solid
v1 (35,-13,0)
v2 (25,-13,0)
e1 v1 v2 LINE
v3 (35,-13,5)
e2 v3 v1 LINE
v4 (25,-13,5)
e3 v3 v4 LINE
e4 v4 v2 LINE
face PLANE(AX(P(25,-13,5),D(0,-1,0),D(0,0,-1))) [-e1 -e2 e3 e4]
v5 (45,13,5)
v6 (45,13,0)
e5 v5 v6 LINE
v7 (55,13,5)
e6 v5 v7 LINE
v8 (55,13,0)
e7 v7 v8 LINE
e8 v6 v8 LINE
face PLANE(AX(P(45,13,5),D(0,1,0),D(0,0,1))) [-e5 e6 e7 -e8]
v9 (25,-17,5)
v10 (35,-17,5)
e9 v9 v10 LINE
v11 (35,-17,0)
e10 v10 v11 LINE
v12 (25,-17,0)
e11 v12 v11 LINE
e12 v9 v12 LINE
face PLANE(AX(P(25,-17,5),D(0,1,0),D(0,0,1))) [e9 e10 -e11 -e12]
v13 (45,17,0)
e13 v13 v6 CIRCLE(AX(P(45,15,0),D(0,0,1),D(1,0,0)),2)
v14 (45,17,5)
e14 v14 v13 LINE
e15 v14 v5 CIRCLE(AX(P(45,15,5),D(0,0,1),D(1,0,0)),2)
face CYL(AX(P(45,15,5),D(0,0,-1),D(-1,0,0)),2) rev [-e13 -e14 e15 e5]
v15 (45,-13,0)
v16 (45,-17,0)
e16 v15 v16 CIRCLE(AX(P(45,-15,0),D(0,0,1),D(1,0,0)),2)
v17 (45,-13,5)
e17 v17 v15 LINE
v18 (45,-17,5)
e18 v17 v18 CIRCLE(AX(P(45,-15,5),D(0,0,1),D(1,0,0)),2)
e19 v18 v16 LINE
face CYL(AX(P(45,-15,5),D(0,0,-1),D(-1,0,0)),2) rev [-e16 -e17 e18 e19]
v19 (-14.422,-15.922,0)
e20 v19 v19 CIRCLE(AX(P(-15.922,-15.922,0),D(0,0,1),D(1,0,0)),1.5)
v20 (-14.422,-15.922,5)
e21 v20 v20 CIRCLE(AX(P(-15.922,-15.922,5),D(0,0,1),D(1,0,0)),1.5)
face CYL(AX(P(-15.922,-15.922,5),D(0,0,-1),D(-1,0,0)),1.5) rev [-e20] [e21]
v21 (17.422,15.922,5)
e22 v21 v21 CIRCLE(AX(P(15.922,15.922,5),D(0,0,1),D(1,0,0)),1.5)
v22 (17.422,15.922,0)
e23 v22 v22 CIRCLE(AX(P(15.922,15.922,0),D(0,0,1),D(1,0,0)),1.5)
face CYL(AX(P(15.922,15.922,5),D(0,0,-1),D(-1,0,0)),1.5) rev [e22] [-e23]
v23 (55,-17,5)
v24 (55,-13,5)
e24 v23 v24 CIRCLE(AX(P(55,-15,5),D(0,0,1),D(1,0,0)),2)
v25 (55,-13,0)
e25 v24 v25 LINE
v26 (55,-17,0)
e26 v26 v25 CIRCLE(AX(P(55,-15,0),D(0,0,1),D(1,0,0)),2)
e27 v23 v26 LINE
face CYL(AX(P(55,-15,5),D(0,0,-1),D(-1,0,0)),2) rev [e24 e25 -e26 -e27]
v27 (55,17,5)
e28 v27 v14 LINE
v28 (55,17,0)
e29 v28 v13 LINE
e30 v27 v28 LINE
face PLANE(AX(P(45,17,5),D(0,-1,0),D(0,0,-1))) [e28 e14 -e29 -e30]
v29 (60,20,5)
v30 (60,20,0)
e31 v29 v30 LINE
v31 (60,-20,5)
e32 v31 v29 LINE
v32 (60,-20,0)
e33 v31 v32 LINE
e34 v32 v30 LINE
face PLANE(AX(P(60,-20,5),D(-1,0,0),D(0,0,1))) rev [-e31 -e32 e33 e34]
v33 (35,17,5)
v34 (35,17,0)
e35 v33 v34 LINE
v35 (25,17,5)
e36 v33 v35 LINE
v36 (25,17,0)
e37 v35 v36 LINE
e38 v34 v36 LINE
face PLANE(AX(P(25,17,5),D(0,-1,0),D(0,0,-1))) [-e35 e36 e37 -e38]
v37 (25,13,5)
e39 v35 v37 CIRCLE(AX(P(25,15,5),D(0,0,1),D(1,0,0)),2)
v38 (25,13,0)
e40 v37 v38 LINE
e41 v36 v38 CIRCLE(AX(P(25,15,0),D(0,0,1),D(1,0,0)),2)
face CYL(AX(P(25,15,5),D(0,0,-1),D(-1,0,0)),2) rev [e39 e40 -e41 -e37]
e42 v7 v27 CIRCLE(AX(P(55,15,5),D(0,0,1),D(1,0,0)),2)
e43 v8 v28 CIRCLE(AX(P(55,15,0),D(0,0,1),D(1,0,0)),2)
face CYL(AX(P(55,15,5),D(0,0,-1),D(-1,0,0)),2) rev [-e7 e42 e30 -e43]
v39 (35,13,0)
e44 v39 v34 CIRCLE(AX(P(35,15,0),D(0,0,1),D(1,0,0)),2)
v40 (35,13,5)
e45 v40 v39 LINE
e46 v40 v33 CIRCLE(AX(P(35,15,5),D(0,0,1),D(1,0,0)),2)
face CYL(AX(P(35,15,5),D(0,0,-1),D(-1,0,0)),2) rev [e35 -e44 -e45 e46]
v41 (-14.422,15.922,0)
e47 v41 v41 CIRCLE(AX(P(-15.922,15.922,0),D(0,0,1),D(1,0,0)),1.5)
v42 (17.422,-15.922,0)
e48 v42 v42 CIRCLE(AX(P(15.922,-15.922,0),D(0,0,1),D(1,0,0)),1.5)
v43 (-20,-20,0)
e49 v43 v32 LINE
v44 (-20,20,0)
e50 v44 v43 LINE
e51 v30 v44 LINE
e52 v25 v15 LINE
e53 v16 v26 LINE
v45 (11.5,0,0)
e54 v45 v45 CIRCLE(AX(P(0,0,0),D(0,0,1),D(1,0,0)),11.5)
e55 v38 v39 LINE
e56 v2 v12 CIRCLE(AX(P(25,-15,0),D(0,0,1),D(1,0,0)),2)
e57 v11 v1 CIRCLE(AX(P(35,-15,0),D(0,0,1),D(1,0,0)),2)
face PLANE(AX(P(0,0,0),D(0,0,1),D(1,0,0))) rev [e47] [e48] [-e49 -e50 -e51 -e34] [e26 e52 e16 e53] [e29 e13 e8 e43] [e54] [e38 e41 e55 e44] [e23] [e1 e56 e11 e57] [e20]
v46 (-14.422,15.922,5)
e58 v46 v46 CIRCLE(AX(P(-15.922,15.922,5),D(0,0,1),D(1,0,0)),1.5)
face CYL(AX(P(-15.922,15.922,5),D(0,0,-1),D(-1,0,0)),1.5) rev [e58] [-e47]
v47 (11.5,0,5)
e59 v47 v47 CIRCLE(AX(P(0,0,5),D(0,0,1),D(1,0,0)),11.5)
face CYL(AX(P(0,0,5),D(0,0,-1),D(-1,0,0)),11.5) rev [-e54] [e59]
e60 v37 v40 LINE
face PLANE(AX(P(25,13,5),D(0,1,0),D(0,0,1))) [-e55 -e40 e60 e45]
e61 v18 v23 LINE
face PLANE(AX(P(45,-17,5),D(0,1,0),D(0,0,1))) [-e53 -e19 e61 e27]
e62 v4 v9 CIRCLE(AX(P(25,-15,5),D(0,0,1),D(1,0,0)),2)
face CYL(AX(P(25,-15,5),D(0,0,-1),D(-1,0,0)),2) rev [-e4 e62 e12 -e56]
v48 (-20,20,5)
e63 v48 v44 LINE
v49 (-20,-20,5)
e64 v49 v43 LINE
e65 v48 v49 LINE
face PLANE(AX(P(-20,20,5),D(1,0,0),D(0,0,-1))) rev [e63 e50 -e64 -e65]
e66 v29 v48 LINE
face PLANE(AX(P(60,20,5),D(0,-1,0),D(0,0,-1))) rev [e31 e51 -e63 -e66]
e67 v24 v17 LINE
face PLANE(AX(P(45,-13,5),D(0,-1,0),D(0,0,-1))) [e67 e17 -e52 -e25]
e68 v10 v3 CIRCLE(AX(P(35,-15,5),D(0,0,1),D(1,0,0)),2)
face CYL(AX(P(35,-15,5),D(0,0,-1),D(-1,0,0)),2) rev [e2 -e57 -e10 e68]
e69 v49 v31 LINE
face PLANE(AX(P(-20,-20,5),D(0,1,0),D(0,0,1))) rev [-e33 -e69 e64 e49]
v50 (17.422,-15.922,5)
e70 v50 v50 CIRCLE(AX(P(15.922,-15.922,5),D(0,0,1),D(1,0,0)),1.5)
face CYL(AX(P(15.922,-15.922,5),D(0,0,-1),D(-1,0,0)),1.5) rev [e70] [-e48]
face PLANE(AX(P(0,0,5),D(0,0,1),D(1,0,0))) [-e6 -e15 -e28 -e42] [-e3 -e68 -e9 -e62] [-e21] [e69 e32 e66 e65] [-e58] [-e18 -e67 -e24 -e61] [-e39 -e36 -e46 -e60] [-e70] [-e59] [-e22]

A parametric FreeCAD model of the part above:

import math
import FreeCAD as App
import Part
import Sketcher


def add_polygon(sketch, points):
    """Adds a closed chain of lines whose ends are joined by coincident constraints."""
    first, n = sketch.GeometryCount, len(points)
    for a, b in zip(points, points[1:] + points[:1]):
        sketch.addGeometry(Part.LineSegment(App.Vector(*a, 0), App.Vector(*b, 0)), False)
    for i in range(n):
        sketch.addConstraint(Sketcher.Constraint("Coincident", first + i, 2, first + (i + 1) % n, 1))

doc = App.newDocument("Part")
body = doc.addObject("PartDesign::Body", "Body")

# Sketch on XY plane
sketch1 = body.newObject("Sketcher::SketchObject", "Sketch")
sketch1.AttachmentSupport = (doc.getObject("XY_Plane"), [""])
sketch1.MapMode = "FlatFace"
add_polygon(sketch1, [(-20, 20), (-20, -20), (60, -20), (60, 20)])  # lines 0-3
sketch1.addGeometry(Part.Circle(App.Vector(-15.9, -15.9, 0), App.Vector(0, 0, 1), 1.5), False)  # 4
sketch1.addGeometry(Part.Circle(App.Vector(15.9, -15.9, 0), App.Vector(0, 0, 1), 1.5), False)  # 5
sketch1.addGeometry(Part.ArcOfCircle(Part.Circle(App.Vector(25, -15, 0), App.Vector(0, 0, 1), 2), math.radians(90), math.radians(270)), False)  # 6
sketch1.addGeometry(Part.LineSegment(App.Vector(25, -13, 0), App.Vector(35, -13, 0)), False)  # 7
sketch1.addGeometry(Part.ArcOfCircle(Part.Circle(App.Vector(35, -15, 0), App.Vector(0, 0, 1), 2), math.radians(-90), math.radians(90)), False)  # 8
sketch1.addGeometry(Part.LineSegment(App.Vector(35, -17, 0), App.Vector(25, -17, 0)), False)  # 9
sketch1.addGeometry(Part.ArcOfCircle(Part.Circle(App.Vector(45, -15, 0), App.Vector(0, 0, 1), 2), math.radians(90), math.radians(270)), False)  # 10
sketch1.addGeometry(Part.LineSegment(App.Vector(45, -13, 0), App.Vector(55, -13, 0)), False)  # 11
sketch1.addGeometry(Part.ArcOfCircle(Part.Circle(App.Vector(55, -15, 0), App.Vector(0, 0, 1), 2), math.radians(-90), math.radians(90)), False)  # 12
sketch1.addGeometry(Part.LineSegment(App.Vector(55, -17, 0), App.Vector(45, -17, 0)), False)  # 13
sketch1.addGeometry(Part.Circle(App.Vector(0, 0, 0), App.Vector(0, 0, 1), 11.5), False)  # 14
sketch1.addGeometry(Part.Circle(App.Vector(-15.9, 15.9, 0), App.Vector(0, 0, 1), 1.5), False)  # 15
sketch1.addGeometry(Part.Circle(App.Vector(15.9, 15.9, 0), App.Vector(0, 0, 1), 1.5), False)  # 16
sketch1.addGeometry(Part.ArcOfCircle(Part.Circle(App.Vector(25, 15, 0), App.Vector(0, 0, 1), 2), math.radians(90), math.radians(270)), False)  # 17
sketch1.addGeometry(Part.LineSegment(App.Vector(25, 17, 0), App.Vector(35, 17, 0)), False)  # 18
sketch1.addGeometry(Part.ArcOfCircle(Part.Circle(App.Vector(35, 15, 0), App.Vector(0, 0, 1), 2), math.radians(-90), math.radians(90)), False)  # 19
sketch1.addGeometry(Part.LineSegment(App.Vector(35, 13, 0), App.Vector(25, 13, 0)), False)  # 20
sketch1.addGeometry(Part.ArcOfCircle(Part.Circle(App.Vector(45, 15, 0), App.Vector(0, 0, 1), 2), math.radians(90), math.radians(270)), False)  # 21
sketch1.addGeometry(Part.LineSegment(App.Vector(45, 17, 0), App.Vector(55, 17, 0)), False)  # 22
sketch1.addGeometry(Part.ArcOfCircle(Part.Circle(App.Vector(55, 15, 0), App.Vector(0, 0, 1), 2), math.radians(-90), math.radians(90)), False)  # 23
sketch1.addGeometry(Part.LineSegment(App.Vector(55, 13, 0), App.Vector(45, 13, 0)), False)  # 24
sketch1.addConstraint(Sketcher.Constraint("Tangent", 6, 1, 7, 1))
sketch1.addConstraint(Sketcher.Constraint("Tangent", 7, 2, 8, 2))
sketch1.addConstraint(Sketcher.Constraint("Tangent", 8, 1, 9, 1))
sketch1.addConstraint(Sketcher.Constraint("Tangent", 9, 2, 6, 2))
sketch1.addConstraint(Sketcher.Constraint("Tangent", 10, 1, 11, 1))
sketch1.addConstraint(Sketcher.Constraint("Tangent", 11, 2, 12, 2))
sketch1.addConstraint(Sketcher.Constraint("Tangent", 12, 1, 13, 1))
sketch1.addConstraint(Sketcher.Constraint("Tangent", 13, 2, 10, 2))
sketch1.addConstraint(Sketcher.Constraint("Tangent", 17, 1, 18, 1))
sketch1.addConstraint(Sketcher.Constraint("Tangent", 18, 2, 19, 2))
sketch1.addConstraint(Sketcher.Constraint("Tangent", 19, 1, 20, 1))
sketch1.addConstraint(Sketcher.Constraint("Tangent", 20, 2, 17, 2))
sketch1.addConstraint(Sketcher.Constraint("Tangent", 21, 1, 22, 1))
sketch1.addConstraint(Sketcher.Constraint("Tangent", 22, 2, 23, 2))
sketch1.addConstraint(Sketcher.Constraint("Tangent", 23, 1, 24, 1))
sketch1.addConstraint(Sketcher.Constraint("Tangent", 24, 2, 21, 2))
sketch1.addConstraint(Sketcher.Constraint("Vertical", 0))
sketch1.addConstraint(Sketcher.Constraint("Horizontal", 1))
sketch1.addConstraint(Sketcher.Constraint("Vertical", 2))
sketch1.addConstraint(Sketcher.Constraint("Horizontal", 3))
sketch1.addConstraint(Sketcher.Constraint("Horizontal", 7))
sketch1.addConstraint(Sketcher.Constraint("Horizontal", 9))
sketch1.addConstraint(Sketcher.Constraint("Horizontal", 11))
sketch1.addConstraint(Sketcher.Constraint("Horizontal", 13))
sketch1.addConstraint(Sketcher.Constraint("Horizontal", 18))
sketch1.addConstraint(Sketcher.Constraint("Horizontal", 20))
sketch1.addConstraint(Sketcher.Constraint("Horizontal", 22))
sketch1.addConstraint(Sketcher.Constraint("Horizontal", 24))
sketch1.addConstraint(Sketcher.Constraint("Coincident", 14, 3, -1, 1))
sketch1.addConstraint(Sketcher.Constraint("Equal", 4, 5))
sketch1.addConstraint(Sketcher.Constraint("Equal", 8, 10))
sketch1.addConstraint(Sketcher.Constraint("Equal", 5, 15))
sketch1.addConstraint(Sketcher.Constraint("Equal", 15, 16))
sketch1.addConstraint(Sketcher.Constraint("Equal", 12, 17))
sketch1.addConstraint(Sketcher.Constraint("Equal", 19, 21))
sketch1.addConstraint(Sketcher.Constraint("Symmetric", 5, 3, 15, 3, -1, 1))
sketch1.addConstraint(Sketcher.Constraint("Symmetric", 4, 3, 16, 3, -1, 1))
sketch1.addConstraint(Sketcher.Constraint("Symmetric", 4, 3, 5, 3, -2))
sketch1.addConstraint(Sketcher.Constraint("Symmetric", 6, 3, 17, 3, -1))
sketch1.addConstraint(Sketcher.Constraint("Symmetric", 10, 3, 21, 3, -1))
sketch1.addConstraint(Sketcher.Constraint("Horizontal", 8, 3, 10, 3))
sketch1.addConstraint(Sketcher.Constraint("Vertical", 8, 3, 19, 3))
sketch1.addConstraint(Sketcher.Constraint("Vertical", 12, 3, 23, 3))
sketch1.addConstraint(Sketcher.Constraint("Equal", 9, 11))
sketch1.addConstraint(Sketcher.Constraint("Diameter", 4, 3.0))
sketch1.addConstraint(Sketcher.Constraint("Diameter", 14, 23.0))
sketch1.addConstraint(Sketcher.Constraint("Radius", 6, 2.0))
sketch1.addConstraint(Sketcher.Constraint("DistanceX", 1, 1, 1, 2, 80.0))
sketch1.addConstraint(Sketcher.Constraint("DistanceX", 7, 1, 7, 2, 10.0))
sketch1.addConstraint(Sketcher.Constraint("DistanceY", 0, 2, 0, 1, 40.0))
sketch1.addConstraint(Sketcher.Constraint("DistanceX", -1, 1, 6, 3, 25.0))
sketch1.addConstraint(Sketcher.Constraint("DistanceY", 6, 3, -1, 1, 15.0))
sketch1.addConstraint(Sketcher.Constraint("DistanceX", -1, 1, 10, 3, 45.0))
sketch1.addConstraint(Sketcher.Constraint("DistanceX", 0, 2, -1, 1, 20.0))
sketch1.addConstraint(Sketcher.Constraint("DistanceY", 0, 2, -1, 1, 20.0))
sketch1.addConstraint(Sketcher.Constraint("DistanceX", 4, 3, -1, 1, 15.922))
sketch1.addConstraint(Sketcher.Constraint("DistanceY", 4, 3, -1, 1, 15.922))
pad1 = body.newObject("PartDesign::Pad", "Pad")
pad1.Profile = sketch1
pad1.Length = 5

doc.recompute()
